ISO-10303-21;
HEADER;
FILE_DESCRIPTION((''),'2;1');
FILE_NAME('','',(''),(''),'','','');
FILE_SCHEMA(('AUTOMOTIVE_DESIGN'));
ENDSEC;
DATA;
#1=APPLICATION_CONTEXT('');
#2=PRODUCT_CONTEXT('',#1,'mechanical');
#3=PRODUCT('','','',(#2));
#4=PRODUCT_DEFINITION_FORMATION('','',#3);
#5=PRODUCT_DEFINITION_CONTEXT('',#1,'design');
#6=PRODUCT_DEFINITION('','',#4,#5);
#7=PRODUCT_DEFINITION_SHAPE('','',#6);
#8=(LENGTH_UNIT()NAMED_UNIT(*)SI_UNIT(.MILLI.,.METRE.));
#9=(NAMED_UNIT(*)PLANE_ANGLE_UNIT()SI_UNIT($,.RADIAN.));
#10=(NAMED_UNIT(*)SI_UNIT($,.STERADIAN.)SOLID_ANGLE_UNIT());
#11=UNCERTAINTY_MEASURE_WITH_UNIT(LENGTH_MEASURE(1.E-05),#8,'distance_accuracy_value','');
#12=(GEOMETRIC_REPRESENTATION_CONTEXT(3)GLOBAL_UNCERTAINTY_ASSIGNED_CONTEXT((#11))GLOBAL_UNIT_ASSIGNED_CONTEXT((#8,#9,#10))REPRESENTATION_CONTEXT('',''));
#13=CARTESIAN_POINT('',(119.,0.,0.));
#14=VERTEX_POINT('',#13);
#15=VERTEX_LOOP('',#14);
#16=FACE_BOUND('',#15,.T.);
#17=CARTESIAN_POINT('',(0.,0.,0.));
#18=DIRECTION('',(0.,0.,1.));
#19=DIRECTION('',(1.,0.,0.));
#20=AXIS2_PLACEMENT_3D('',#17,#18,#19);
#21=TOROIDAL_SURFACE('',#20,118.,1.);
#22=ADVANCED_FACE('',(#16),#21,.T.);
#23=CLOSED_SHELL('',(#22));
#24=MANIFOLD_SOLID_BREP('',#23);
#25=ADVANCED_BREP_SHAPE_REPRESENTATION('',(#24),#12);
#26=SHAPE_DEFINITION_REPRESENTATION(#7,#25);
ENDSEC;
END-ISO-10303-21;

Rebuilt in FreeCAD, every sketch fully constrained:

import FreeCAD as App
import Part
import Sketcher

V = App.Vector

doc = App.newDocument("Part")
params = doc.addObject("Spreadsheet::Sheet", "Params")
for row, (alias, value) in enumerate([
    ("sketch1_diameter", "2 mm"),
    ("revolution_angle", "360 deg"),
], start=1):
    params.set(f"A{row}", alias)
    params.set(f"B{row}", "=" + value)
    params.setAlias(f"B{row}", alias)

body = doc.addObject("PartDesign::Body", "Body")

# Sketch on YZ plane
sketch1 = body.newObject("Sketcher::SketchObject", "Sketch")
sketch1.AttachmentSupport = (doc.getObject("YZ_Plane"), [""])
sketch1.MapMode = "FlatFace"
sketch1.addGeometry(Part.Circle(V(118, 0, 0), V(0, 0, 1), 1), False)
sketch1.addConstraint([
    Sketcher.Constraint("PointOnObject", 0, 3, -1),
    Sketcher.Constraint("Diameter", 0, 2.0),
    Sketcher.Constraint("DistanceX", -1, 1, 0, 3, 118.0),
])
sketch1.setExpression("Constraints[1]", "Params.sketch1_diameter")
revolution = body.newObject("PartDesign::Revolution", "Revolution")
revolution.Profile = sketch1
revolution.ReferenceAxis = (sketch1, ["V_Axis"])
revolution.setExpression("Angle", "Params.revolution_angle")

doc.recompute()
